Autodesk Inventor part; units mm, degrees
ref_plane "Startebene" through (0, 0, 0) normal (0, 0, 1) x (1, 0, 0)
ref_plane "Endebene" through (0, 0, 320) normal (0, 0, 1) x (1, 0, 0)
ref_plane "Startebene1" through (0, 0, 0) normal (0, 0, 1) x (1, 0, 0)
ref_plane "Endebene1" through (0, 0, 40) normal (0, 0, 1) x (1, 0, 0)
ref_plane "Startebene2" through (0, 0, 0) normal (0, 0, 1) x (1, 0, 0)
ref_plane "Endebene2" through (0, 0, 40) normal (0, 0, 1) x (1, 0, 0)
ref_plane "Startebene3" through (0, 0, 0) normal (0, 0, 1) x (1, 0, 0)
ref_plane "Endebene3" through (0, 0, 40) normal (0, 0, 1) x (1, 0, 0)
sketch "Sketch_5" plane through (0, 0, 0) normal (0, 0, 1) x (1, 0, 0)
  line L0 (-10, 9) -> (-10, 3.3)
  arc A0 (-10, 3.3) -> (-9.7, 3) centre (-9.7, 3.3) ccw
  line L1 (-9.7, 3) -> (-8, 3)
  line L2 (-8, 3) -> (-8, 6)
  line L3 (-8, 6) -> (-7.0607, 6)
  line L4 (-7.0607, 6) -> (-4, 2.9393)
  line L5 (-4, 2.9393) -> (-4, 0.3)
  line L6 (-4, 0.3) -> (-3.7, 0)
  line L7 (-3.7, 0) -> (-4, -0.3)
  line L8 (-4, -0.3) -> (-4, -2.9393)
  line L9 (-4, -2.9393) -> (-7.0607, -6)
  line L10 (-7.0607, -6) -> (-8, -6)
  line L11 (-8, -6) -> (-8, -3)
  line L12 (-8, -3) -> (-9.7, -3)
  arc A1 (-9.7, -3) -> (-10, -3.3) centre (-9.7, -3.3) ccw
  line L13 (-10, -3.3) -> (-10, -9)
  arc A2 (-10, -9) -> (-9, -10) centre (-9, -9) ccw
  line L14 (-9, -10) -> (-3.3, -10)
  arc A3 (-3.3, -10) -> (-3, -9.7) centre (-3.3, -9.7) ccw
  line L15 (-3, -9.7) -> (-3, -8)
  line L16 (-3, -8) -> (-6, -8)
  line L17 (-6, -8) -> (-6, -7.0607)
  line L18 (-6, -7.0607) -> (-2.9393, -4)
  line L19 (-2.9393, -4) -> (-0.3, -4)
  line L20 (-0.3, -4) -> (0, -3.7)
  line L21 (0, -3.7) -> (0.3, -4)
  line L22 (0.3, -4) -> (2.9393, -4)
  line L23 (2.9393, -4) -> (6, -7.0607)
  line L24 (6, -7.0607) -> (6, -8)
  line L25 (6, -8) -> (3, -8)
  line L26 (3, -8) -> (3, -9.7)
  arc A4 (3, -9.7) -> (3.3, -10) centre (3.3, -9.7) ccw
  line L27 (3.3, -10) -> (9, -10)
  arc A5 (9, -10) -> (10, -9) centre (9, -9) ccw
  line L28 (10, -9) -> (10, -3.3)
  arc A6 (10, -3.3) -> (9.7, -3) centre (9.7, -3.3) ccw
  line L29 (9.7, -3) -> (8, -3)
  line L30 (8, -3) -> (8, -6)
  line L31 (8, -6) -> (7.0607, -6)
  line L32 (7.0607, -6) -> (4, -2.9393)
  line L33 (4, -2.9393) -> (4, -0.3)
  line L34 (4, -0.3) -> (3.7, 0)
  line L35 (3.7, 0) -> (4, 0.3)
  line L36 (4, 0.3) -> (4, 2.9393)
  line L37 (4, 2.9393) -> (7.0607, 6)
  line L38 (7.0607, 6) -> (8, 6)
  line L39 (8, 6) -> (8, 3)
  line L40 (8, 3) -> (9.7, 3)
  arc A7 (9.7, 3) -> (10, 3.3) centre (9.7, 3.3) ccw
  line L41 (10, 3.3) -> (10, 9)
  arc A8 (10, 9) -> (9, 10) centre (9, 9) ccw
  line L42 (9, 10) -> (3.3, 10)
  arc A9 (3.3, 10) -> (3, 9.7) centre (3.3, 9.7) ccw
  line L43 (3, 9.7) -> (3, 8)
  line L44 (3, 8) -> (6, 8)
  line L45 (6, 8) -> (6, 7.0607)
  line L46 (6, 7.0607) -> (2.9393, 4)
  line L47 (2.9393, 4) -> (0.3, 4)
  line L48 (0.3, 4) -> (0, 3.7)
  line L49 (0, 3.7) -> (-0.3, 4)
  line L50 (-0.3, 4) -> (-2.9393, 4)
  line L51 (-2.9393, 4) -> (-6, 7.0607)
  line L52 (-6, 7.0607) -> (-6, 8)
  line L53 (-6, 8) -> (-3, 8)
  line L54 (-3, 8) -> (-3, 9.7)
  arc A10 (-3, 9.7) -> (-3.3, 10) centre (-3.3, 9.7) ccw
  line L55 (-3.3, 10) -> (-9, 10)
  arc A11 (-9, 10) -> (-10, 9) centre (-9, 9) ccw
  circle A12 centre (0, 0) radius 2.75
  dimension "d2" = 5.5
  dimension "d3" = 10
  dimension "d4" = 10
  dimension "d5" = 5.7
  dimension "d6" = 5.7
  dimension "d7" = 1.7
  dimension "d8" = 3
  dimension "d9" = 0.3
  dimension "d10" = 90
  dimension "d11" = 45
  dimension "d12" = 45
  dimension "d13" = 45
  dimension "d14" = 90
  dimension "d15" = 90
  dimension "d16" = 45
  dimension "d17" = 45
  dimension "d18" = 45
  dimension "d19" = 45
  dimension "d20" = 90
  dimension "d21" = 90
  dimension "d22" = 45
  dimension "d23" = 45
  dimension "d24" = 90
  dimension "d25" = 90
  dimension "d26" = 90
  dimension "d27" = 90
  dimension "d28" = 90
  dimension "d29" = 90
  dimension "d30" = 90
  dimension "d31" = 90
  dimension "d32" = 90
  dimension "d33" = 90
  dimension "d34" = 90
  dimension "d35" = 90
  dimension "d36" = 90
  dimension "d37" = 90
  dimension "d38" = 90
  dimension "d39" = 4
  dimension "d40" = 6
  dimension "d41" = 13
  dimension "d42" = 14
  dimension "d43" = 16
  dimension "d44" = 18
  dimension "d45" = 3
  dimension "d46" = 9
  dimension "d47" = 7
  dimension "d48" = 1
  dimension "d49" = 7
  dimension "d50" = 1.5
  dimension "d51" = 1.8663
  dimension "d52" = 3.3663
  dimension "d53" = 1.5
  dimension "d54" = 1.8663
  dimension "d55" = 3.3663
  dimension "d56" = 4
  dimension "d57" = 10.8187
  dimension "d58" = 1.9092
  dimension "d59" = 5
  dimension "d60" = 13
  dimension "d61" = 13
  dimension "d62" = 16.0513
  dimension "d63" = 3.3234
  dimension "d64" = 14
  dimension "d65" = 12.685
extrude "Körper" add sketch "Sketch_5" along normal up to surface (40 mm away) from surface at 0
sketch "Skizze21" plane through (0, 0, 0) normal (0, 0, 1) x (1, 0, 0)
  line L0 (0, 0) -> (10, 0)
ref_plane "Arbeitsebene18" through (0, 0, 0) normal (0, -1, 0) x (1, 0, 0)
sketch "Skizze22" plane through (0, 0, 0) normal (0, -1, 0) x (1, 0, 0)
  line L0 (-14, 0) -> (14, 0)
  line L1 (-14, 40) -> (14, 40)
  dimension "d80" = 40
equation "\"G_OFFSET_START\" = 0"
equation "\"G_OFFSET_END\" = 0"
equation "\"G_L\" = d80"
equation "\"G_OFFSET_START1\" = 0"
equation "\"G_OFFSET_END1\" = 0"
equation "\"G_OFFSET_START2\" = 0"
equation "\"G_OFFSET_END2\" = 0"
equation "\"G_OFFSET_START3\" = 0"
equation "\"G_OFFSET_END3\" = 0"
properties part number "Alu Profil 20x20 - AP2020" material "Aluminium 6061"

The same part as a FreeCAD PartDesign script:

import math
import FreeCAD as App
import Part
import Sketcher
from FreeCAD import Vector

doc = App.newDocument("Part")
body = doc.addObject("PartDesign::Body", "Body")

sketch1 = body.newObject("Sketcher::SketchObject", "Sketch")
sketch1.AttachmentSupport = (doc.getObject("XY_Plane"), [""])
sketch1.MapMode = "FlatFace"
sketch1.addGeometry(Part.ArcOfCircle(Part.Circle(Vector(-9, 9, 0), Vector(0, 0, 1), 1), math.radians(90), math.radians(180)), False)
sketch1.addGeometry(Part.LineSegment(Vector(-10, 9, 0), Vector(-10, 3.3, 0)), False)
sketch1.addGeometry(Part.ArcOfCircle(Part.Circle(Vector(-9.7, 3.3, 0), Vector(0, 0, 1), 0.3), math.radians(180), math.radians(270)), False)
sketch1.addGeometry(Part.LineSegment(Vector(-9.7, 3, 0), Vector(-8, 3, 0)), False)
sketch1.addGeometry(Part.LineSegment(Vector(-8, 3, 0), Vector(-8, 6, 0)), False)
sketch1.addGeometry(Part.LineSegment(Vector(-8, 6, 0), Vector(-7.06, 6, 0)), False)
sketch1.addGeometry(Part.LineSegment(Vector(-7.06, 6, 0), Vector(-4, 2.94, 0)), False)
sketch1.addGeometry(Part.LineSegment(Vector(-4, 2.94, 0), Vector(-4, 0.3, 0)), False)
sketch1.addGeometry(Part.LineSegment(Vector(-4, 0.3, 0), Vector(-3.7, 0, 0)), False)
sketch1.addGeometry(Part.LineSegment(Vector(-3.7, 0, 0), Vector(-4, -0.3, 0)), False)
sketch1.addGeometry(Part.LineSegment(Vector(-4, -0.3, 0), Vector(-4, -2.94, 0)), False)
sketch1.addGeometry(Part.LineSegment(Vector(-4, -2.94, 0), Vector(-7.06, -6, 0)), False)
sketch1.addGeometry(Part.LineSegment(Vector(-7.06, -6, 0), Vector(-8, -6, 0)), False)
sketch1.addGeometry(Part.LineSegment(Vector(-8, -6, 0), Vector(-8, -3, 0)), False)
sketch1.addGeometry(Part.LineSegment(Vector(-8, -3, 0), Vector(-9.7, -3, 0)), False)
sketch1.addGeometry(Part.ArcOfCircle(Part.Circle(Vector(-9.7, -3.3, 0), Vector(0, 0, 1), 0.3), math.radians(90), math.radians(180)), False)
sketch1.addGeometry(Part.LineSegment(Vector(-10, -3.3, 0), Vector(-10, -9, 0)), False)
sketch1.addGeometry(Part.ArcOfCircle(Part.Circle(Vector(-9, -9, 0), Vector(0, 0, 1), 1), math.radians(180), math.radians(270)), False)
sketch1.addGeometry(Part.LineSegment(Vector(-9, -10, 0), Vector(-3.3, -10, 0)), False)
sketch1.addGeometry(Part.ArcOfCircle(Part.Circle(Vector(-3.3, -9.7, 0), Vector(0, 0, 1), 0.3), math.radians(-90), math.radians(0)), False)
sketch1.addGeometry(Part.LineSegment(Vector(-3, -9.7, 0), Vector(-3, -8, 0)), False)
sketch1.addGeometry(Part.LineSegment(Vector(-3, -8, 0), Vector(-6, -8, 0)), False)
sketch1.addGeometry(Part.LineSegment(Vector(-6, -8, 0), Vector(-6, -7.06, 0)), False)
sketch1.addGeometry(Part.LineSegment(Vector(-6, -7.06, 0), Vector(-2.94, -4, 0)), False)
sketch1.addGeometry(Part.LineSegment(Vector(-2.94, -4, 0), Vector(-0.3, -4, 0)), False)
sketch1.addGeometry(Part.LineSegment(Vector(-0.3, -4, 0), Vector(0, -3.7, 0)), False)
sketch1.addGeometry(Part.LineSegment(Vector(0, -3.7, 0), Vector(0.3, -4, 0)), False)
sketch1.addGeometry(Part.LineSegment(Vector(0.3, -4, 0), Vector(2.94, -4, 0)), False)
sketch1.addGeometry(Part.LineSegment(Vector(2.94, -4, 0), Vector(6, -7.06, 0)), False)
sketch1.addGeometry(Part.LineSegment(Vector(6, -7.06, 0), Vector(6, -8, 0)), False)
sketch1.addGeometry(Part.LineSegment(Vector(6, -8, 0), Vector(3, -8, 0)), False)
sketch1.addGeometry(Part.LineSegment(Vector(3, -8, 0), Vector(3, -9.7, 0)), False)
sketch1.addGeometry(Part.ArcOfCircle(Part.Circle(Vector(3.3, -9.7, 0), Vector(0, 0, 1), 0.3), math.radians(180), math.radians(270)), False)
sketch1.addGeometry(Part.LineSegment(Vector(3.3, -10, 0), Vector(9, -10, 0)), False)
sketch1.addGeometry(Part.ArcOfCircle(Part.Circle(Vector(9, -9, 0), Vector(0, 0, 1), 1), math.radians(-90), math.radians(0)), False)
sketch1.addGeometry(Part.LineSegment(Vector(10, -9, 0), Vector(10, -3.3, 0)), False)
sketch1.addGeometry(Part.ArcOfCircle(Part.Circle(Vector(9.7, -3.3, 0), Vector(0, 0, 1), 0.3), math.radians(0), math.radians(90)), False)
sketch1.addGeometry(Part.LineSegment(Vector(9.7, -3, 0), Vector(8, -3, 0)), False)
sketch1.addGeometry(Part.LineSegment(Vector(8, -3, 0), Vector(8, -6, 0)), False)
sketch1.addGeometry(Part.LineSegment(Vector(8, -6, 0), Vector(7.06, -6, 0)), False)
sketch1.addGeometry(Part.LineSegment(Vector(7.06, -6, 0), Vector(4, -2.94, 0)), False)
sketch1.addGeometry(Part.LineSegment(Vector(4, -2.94, 0), Vector(4, -0.3, 0)), False)
sketch1.addGeometry(Part.LineSegment(Vector(4, -0.3, 0), Vector(3.7, 0, 0)), False)
sketch1.addGeometry(Part.LineSegment(Vector(3.7, 0, 0), Vector(4, 0.3, 0)), False)
sketch1.addGeometry(Part.LineSegment(Vector(4, 0.3, 0), Vector(4, 2.94, 0)), False)
sketch1.addGeometry(Part.LineSegment(Vector(4, 2.94, 0), Vector(7.06, 6, 0)), False)
sketch1.addGeometry(Part.LineSegment(Vector(7.06, 6, 0), Vector(8, 6, 0)), False)
sketch1.addGeometry(Part.LineSegment(Vector(8, 6, 0), Vector(8, 3, 0)), False)
sketch1.addGeometry(Part.LineSegment(Vector(8, 3, 0), Vector(9.7, 3, 0)), False)
sketch1.addGeometry(Part.ArcOfCircle(Part.Circle(Vector(9.7, 3.3, 0), Vector(0, 0, 1), 0.3), math.radians(-90), math.radians(0)), False)
sketch1.addGeometry(Part.LineSegment(Vector(10, 3.3, 0), Vector(10, 9, 0)), False)
sketch1.addGeometry(Part.ArcOfCircle(Part.Circle(Vector(9, 9, 0), Vector(0, 0, 1), 1), math.radians(0), math.radians(90)), False)
sketch1.addGeometry(Part.LineSegment(Vector(9, 10, 0), Vector(3.3, 10, 0)), False)
sketch1.addGeometry(Part.ArcOfCircle(Part.Circle(Vector(3.3, 9.7, 0), Vector(0, 0, 1), 0.3), math.radians(90), math.radians(180)), False)
sketch1.addGeometry(Part.LineSegment(Vector(3, 9.7, 0), Vector(3, 8, 0)), False)
sketch1.addGeometry(Part.LineSegment(Vector(3, 8, 0), Vector(6, 8, 0)), False)
sketch1.addGeometry(Part.LineSegment(Vector(6, 8, 0), Vector(6, 7.06, 0)), False)
sketch1.addGeometry(Part.LineSegment(Vector(6, 7.06, 0), Vector(2.94, 4, 0)), False)
sketch1.addGeometry(Part.LineSegment(Vector(2.94, 4, 0), Vector(0.3, 4, 0)), False)
sketch1.addGeometry(Part.LineSegment(Vector(0.3, 4, 0), Vector(0, 3.7, 0)), False)
sketch1.addGeometry(Part.LineSegment(Vector(0, 3.7, 0), Vector(-0.3, 4, 0)), False)
sketch1.addGeometry(Part.LineSegment(Vector(-0.3, 4, 0), Vector(-2.94, 4, 0)), False)
sketch1.addGeometry(Part.LineSegment(Vector(-2.94, 4, 0), Vector(-6, 7.06, 0)), False)
sketch1.addGeometry(Part.LineSegment(Vector(-6, 7.06, 0), Vector(-6, 8, 0)), False)
sketch1.addGeometry(Part.LineSegment(Vector(-6, 8, 0), Vector(-3, 8, 0)), False)
sketch1.addGeometry(Part.LineSegment(Vector(-3, 8, 0), Vector(-3, 9.7, 0)), False)
sketch1.addGeometry(Part.ArcOfCircle(Part.Circle(Vector(-3.3, 9.7, 0), Vector(0, 0, 1), 0.3), math.radians(0), math.radians(90)), False)
sketch1.addGeometry(Part.LineSegment(Vector(-3.3, 10, 0), Vector(-9, 10, 0)), False)
sketch1.addGeometry(Part.Circle(Vector(0, 0, 0), Vector(0, 0, 1), 2.75), False)
sketch1.addConstraint(Sketcher.Constraint("Tangent", 0, 2, 1, 1))
sketch1.addConstraint(Sketcher.Constraint("Tangent", 1, 2, 2, 1))
sketch1.addConstraint(Sketcher.Constraint("Tangent", 2, 2, 3, 1))
sketch1.addConstraint(Sketcher.Constraint("Coincident", 3, 2, 4, 1))
sketch1.addConstraint(Sketcher.Constraint("Coincident", 4, 2, 5, 1))
sketch1.addConstraint(Sketcher.Constraint("Coincident", 5, 2, 6, 1))
sketch1.addConstraint(Sketcher.Constraint("Coincident", 6, 2, 7, 1))
sketch1.addConstraint(Sketcher.Constraint("Coincident", 7, 2, 8, 1))
sketch1.addConstraint(Sketcher.Constraint("Coincident", 8, 2, 9, 1))
sketch1.addConstraint(Sketcher.Constraint("Coincident", 9, 2, 10, 1))
sketch1.addConstraint(Sketcher.Constraint("Coincident", 10, 2, 11, 1))
sketch1.addConstraint(Sketcher.Constraint("Coincident", 11, 2, 12, 1))
sketch1.addConstraint(Sketcher.Constraint("Coincident", 12, 2, 13, 1))
sketch1.addConstraint(Sketcher.Constraint("Coincident", 13, 2, 14, 1))
sketch1.addConstraint(Sketcher.Constraint("Tangent", 14, 2, 15, 1))
sketch1.addConstraint(Sketcher.Constraint("Tangent", 15, 2, 16, 1))
sketch1.addConstraint(Sketcher.Constraint("Tangent", 16, 2, 17, 1))
sketch1.addConstraint(Sketcher.Constraint("Tangent", 17, 2, 18, 1))
sketch1.addConstraint(Sketcher.Constraint("Tangent", 18, 2, 19, 1))
sketch1.addConstraint(Sketcher.Constraint("Tangent", 19, 2, 20, 1))
sketch1.addConstraint(Sketcher.Constraint("Coincident", 20, 2, 21, 1))
sketch1.addConstraint(Sketcher.Constraint("Coincident", 21, 2, 22, 1))
sketch1.addConstraint(Sketcher.Constraint("Coincident", 22, 2, 23, 1))
sketch1.addConstraint(Sketcher.Constraint("Coincident", 23, 2, 24, 1))
sketch1.addConstraint(Sketcher.Constraint("Coincident", 24, 2, 25, 1))
sketch1.addConstraint(Sketcher.Constraint("Coincident", 25, 2, 26, 1))
sketch1.addConstraint(Sketcher.Constraint("Coincident", 26, 2, 27, 1))
sketch1.addConstraint(Sketcher.Constraint("Coincident", 27, 2, 28, 1))
sketch1.addConstraint(Sketcher.Constraint("Coincident", 28, 2, 29, 1))
sketch1.addConstraint(Sketcher.Constraint("Coincident", 29, 2, 30, 1))
sketch1.addConstraint(Sketcher.Constraint("Coincident", 30, 2, 31, 1))
sketch1.addConstraint(Sketcher.Constraint("Tangent", 31, 2, 32, 1))
sketch1.addConstraint(Sketcher.Constraint("Tangent", 32, 2, 33, 1))
sketch1.addConstraint(Sketcher.Constraint("Tangent", 33, 2, 34, 1))
sketch1.addConstraint(Sketcher.Constraint("Tangent", 34, 2, 35, 1))
sketch1.addConstraint(Sketcher.Constraint("Tangent", 35, 2, 36, 1))
sketch1.addConstraint(Sketcher.Constraint("Tangent", 36, 2, 37, 1))
sketch1.addConstraint(Sketcher.Constraint("Coincident", 37, 2, 38, 1))
sketch1.addConstraint(Sketcher.Constraint("Coincident", 38, 2, 39, 1))
sketch1.addConstraint(Sketcher.Constraint("Coincident", 39, 2, 40, 1))
sketch1.addConstraint(Sketcher.Constraint("Coincident", 40, 2, 41, 1))
sketch1.addConstraint(Sketcher.Constraint("Coincident", 41, 2, 42, 1))
sketch1.addConstraint(Sketcher.Constraint("Coincident", 42, 2, 43, 1))
sketch1.addConstraint(Sketcher.Constraint("Coincident", 43, 2, 44, 1))
sketch1.addConstraint(Sketcher.Constraint("Coincident", 44, 2, 45, 1))
sketch1.addConstraint(Sketcher.Constraint("Coincident", 45, 2, 46, 1))
sketch1.addConstraint(Sketcher.Constraint("Coincident", 46, 2, 47, 1))
sketch1.addConstraint(Sketcher.Constraint("Coincident", 47, 2, 48, 1))
sketch1.addConstraint(Sketcher.Constraint("Tangent", 48, 2, 49, 1))
sketch1.addConstraint(Sketcher.Constraint("Tangent", 49, 2, 50, 1))
sketch1.addConstraint(Sketcher.Constraint("Tangent", 50, 2, 51, 1))
sketch1.addConstraint(Sketcher.Constraint("Tangent", 51, 2, 52, 1))
sketch1.addConstraint(Sketcher.Constraint("Tangent", 52, 2, 53, 1))
sketch1.addConstraint(Sketcher.Constraint("Tangent", 53, 2, 54, 1))
sketch1.addConstraint(Sketcher.Constraint("Coincident", 54, 2, 55, 1))
sketch1.addConstraint(Sketcher.Constraint("Coincident", 55, 2, 56, 1))
sketch1.addConstraint(Sketcher.Constraint("Coincident", 56, 2, 57, 1))
sketch1.addConstraint(Sketcher.Constraint("Coincident", 57, 2, 58, 1))
sketch1.addConstraint(Sketcher.Constraint("Coincident", 58, 2, 59, 1))
sketch1.addConstraint(Sketcher.Constraint("Coincident", 59, 2, 60, 1))
sketch1.addConstraint(Sketcher.Constraint("Coincident", 60, 2, 61, 1))
sketch1.addConstraint(Sketcher.Constraint("Coincident", 61, 2, 62, 1))
sketch1.addConstraint(Sketcher.Constraint("Coincident", 62, 2, 63, 1))
sketch1.addConstraint(Sketcher.Constraint("Coincident", 63, 2, 64, 1))
sketch1.addConstraint(Sketcher.Constraint("Coincident", 64, 2, 65, 1))
sketch1.addConstraint(Sketcher.Constraint("Tangent", 65, 2, 66, 1))
sketch1.addConstraint(Sketcher.Constraint("Tangent", 66, 2, 67, 1))
sketch1.addConstraint(Sketcher.Constraint("Tangent", 67, 2, 0, 1))
sketch1.addConstraint(Sketcher.Constraint("Vertical", 1))
sketch1.addConstraint(Sketcher.Constraint("Horizontal", 3))
sketch1.addConstraint(Sketcher.Constraint("Vertical", 4))
sketch1.addConstraint(Sketcher.Constraint("Horizontal", 5))
sketch1.addConstraint(Sketcher.Constraint("Vertical", 7))
sketch1.addConstraint(Sketcher.Constraint("Vertical", 10))
sketch1.addConstraint(Sketcher.Constraint("Horizontal", 12))
sketch1.addConstraint(Sketcher.Constraint("Vertical", 13))
sketch1.addConstraint(Sketcher.Constraint("Horizontal", 14))
sketch1.addConstraint(Sketcher.Constraint("Vertical", 16))
sketch1.addConstraint(Sketcher.Constraint("Horizontal", 18))
sketch1.addConstraint(Sketcher.Constraint("Vertical", 20))
sketch1.addConstraint(Sketcher.Constraint("Horizontal", 21))
sketch1.addConstraint(Sketcher.Constraint("Vertical", 22))
sketch1.addConstraint(Sketcher.Constraint("Horizontal", 24))
sketch1.addConstraint(Sketcher.Constraint("Horizontal", 27))
sketch1.addConstraint(Sketcher.Constraint("Vertical", 29))
sketch1.addConstraint(Sketcher.Constraint("Horizontal", 30))
sketch1.addConstraint(Sketcher.Constraint("Vertical", 31))
sketch1.addConstraint(Sketcher.Constraint("Horizontal", 33))
sketch1.addConstraint(Sketcher.Constraint("Vertical", 35))
sketch1.addConstraint(Sketcher.Constraint("Horizontal", 37))
sketch1.addConstraint(Sketcher.Constraint("Vertical", 38))
sketch1.addConstraint(Sketcher.Constraint("Horizontal", 39))
sketch1.addConstraint(Sketcher.Constraint("Vertical", 41))
sketch1.addConstraint(Sketcher.Constraint("Vertical", 44))
sketch1.addConstraint(Sketcher.Constraint("Horizontal", 46))
sketch1.addConstraint(Sketcher.Constraint("Vertical", 47))
sketch1.addConstraint(Sketcher.Constraint("Horizontal", 48))
sketch1.addConstraint(Sketcher.Constraint("Vertical", 50))
sketch1.addConstraint(Sketcher.Constraint("Horizontal", 52))
sketch1.addConstraint(Sketcher.Constraint("Vertical", 54))
sketch1.addConstraint(Sketcher.Constraint("Horizontal", 55))
sketch1.addConstraint(Sketcher.Constraint("Vertical", 56))
sketch1.addConstraint(Sketcher.Constraint("Horizontal", 58))
sketch1.addConstraint(Sketcher.Constraint("Horizontal", 61))
sketch1.addConstraint(Sketcher.Constraint("Vertical", 63))
sketch1.addConstraint(Sketcher.Constraint("Horizontal", 64))
sketch1.addConstraint(Sketcher.Constraint("Vertical", 65))
sketch1.addConstraint(Sketcher.Constraint("Horizontal", 67))
sketch1.addConstraint(Sketcher.Constraint("Coincident", 68, 3, -1, 1))
sketch1.addConstraint(Sketcher.Constraint("Equal", 2, 15))
sketch1.addConstraint(Sketcher.Constraint("Equal", 0, 17))
sketch1.addConstraint(Sketcher.Constraint("Equal", 15, 19))
sketch1.addConstraint(Sketcher.Constraint("Equal", 19, 32))
sketch1.addConstraint(Sketcher.Constraint("Equal", 17, 34))
sketch1.addConstraint(Sketcher.Constraint("Equal", 32, 36))
sketch1.addConstraint(Sketcher.Constraint("Equal", 36, 49))
sketch1.addConstraint(Sketcher.Constraint("Equal", 34, 51))
sketch1.addConstraint(Sketcher.Constraint("Equal", 49, 53))
sketch1.addConstraint(Sketcher.Constraint("Equal", 53, 66))
sketch1.addConstraint(Sketcher.Constraint("Symmetric", 0, 3, 34, 3, -1, 1))
sketch1.addConstraint(Sketcher.Constraint("Symmetric", 15, 3, 49, 3, -1, 1))
sketch1.addConstraint(Sketcher.Constraint("Symmetric", 19, 3, 53, 3, -1, 1))
sketch1.addConstraint(Sketcher.Constraint("Symmetric", 3, 2, 37, 2, -1, 1))
sketch1.addConstraint(Sketcher.Constraint("Symmetric", 5, 2, 39, 2, -1, 1))
sketch1.addConstraint(Sketcher.Constraint("Symmetric", 6, 2, 40, 2, -1, 1))
sketch1.addConstraint(Sketcher.Constraint("Symmetric", 8, 2, 42, 2, -1, 1))
sketch1.addConstraint(Sketcher.Constraint("Symmetric", 9, 2, 43, 2, -1, 1))
sketch1.addConstraint(Sketcher.Constraint("Symmetric", 11, 2, 45, 2, -1, 1))
sketch1.addConstraint(Sketcher.Constraint("Symmetric", 21, 2, 55, 2, -1, 1))
sketch1.addConstraint(Sketcher.Constraint("Symmetric", 23, 2, 57, 2, -1, 1))
sketch1.addConstraint(Sketcher.Constraint("Symmetric", 25, 2, 59, 2, -1, 1))
sketch1.addConstraint(Sketcher.Constraint("Symmetric", 26, 2, 60, 2, -1, 1))
sketch1.addConstraint(Sketcher.Constraint("Symmetric", 28, 2, 62, 2, -1, 1))
sketch1.addConstraint(Sketcher.Constraint("Symmetric", 30, 2, 64, 2, -1, 1))
sketch1.addConstraint(Sketcher.Constraint("Symmetric", 19, 3, 32, 3, -2))
sketch1.addConstraint(Sketcher.Constraint("Symmetric", 15, 3, 36, 3, -2))
sketch1.addConstraint(Sketcher.Constraint("Symmetric", 24, 2, 26, 2, -2))
sketch1.addConstraint(Sketcher.Constraint("Symmetric", 22, 2, 28, 2, -2))
sketch1.addConstraint(Sketcher.Constraint("Symmetric", 12, 2, 38, 2, -2))
sketch1.addConstraint(Sketcher.Constraint("Symmetric", 10, 2, 40, 2, -2))
sketch1.addConstraint(Sketcher.Constraint("PointOnObject", 8, 2, -1))
sketch1.addConstraint(Sketcher.Constraint("PointOnObject", 25, 2, -2))
sketch1.addConstraint(Sketcher.Constraint("Parallel", 6, 8))
sketch1.addConstraint(Sketcher.Constraint("Perpendicular", 8, 9))
sketch1.addConstraint(Sketcher.Constraint("Parallel", 9, 11))
sketch1.addConstraint(Sketcher.Constraint("Parallel", 11, 23))
sketch1.addConstraint(Sketcher.Constraint("Parallel", 23, 25))
sketch1.addConstraint(Sketcher.Constraint("Perpendicular", 25, 26))
sketch1.addConstraint(Sketcher.Constraint("Parallel", 26, 28))
sketch1.addConstraint(Sketcher.Constraint("Parallel", 40, 42))
sketch1.addConstraint(Sketcher.Constraint("Parallel", 43, 45))
sketch1.addConstraint(Sketcher.Constraint("Parallel", 45, 57))
sketch1.addConstraint(Sketcher.Constraint("Parallel", 57, 59))
sketch1.addConstraint(Sketcher.Constraint("Parallel", 60, 62))
sketch1.addConstraint(Sketcher.Constraint("Horizontal", 21, 2, 29, 2))
sketch1.addConstraint(Sketcher.Constraint("Vertical", 38, 2, 46, 2))
sketch1.addConstraint(Sketcher.Constraint("Equal", 67, 1))
sketch1.addConstraint(Sketcher.Constraint("Equal", 64, 4))
sketch1.addConstraint(Sketcher.Constraint("Equal", 61, 7))
sketch1.addConstraint(Sketcher.Constraint("Equal", 48, 20))
sketch1.addConstraint(Sketcher.Constraint("Equal", 46, 22))
sketch1.addConstraint(Sketcher.Constraint("Equal", 11, 23))
sketch1.addConstraint(Sketcher.Constraint("Equal", 9, 25))
sketch1.addConstraint(Sketcher.Constraint("Radius", 0, 1.0))
sketch1.addConstraint(Sketcher.Constraint("Diameter", 68, 5.5))
sketch1.addConstraint(Sketcher.Constraint("Radius", 2, 0.3))
sketch1.addConstraint(Sketcher.Constraint("DistanceX", 21, 2, 21, 1, 3.0))
sketch1.addConstraint(Sketcher.Constraint("DistanceX", 3, 1, 3, 2, 1.7))
sketch1.addConstraint(Sketcher.Constraint("DistanceX", 18, 1, 18, 2, 5.7))
sketch1.addConstraint(Sketcher.Constraint("DistanceX", 0, 3, -1, 1, 9.0))
sketch1.addConstraint(Sketcher.Constraint("DistanceX", 6, 2, -1, 1, 4.0))
sketch1.addConstraint(Sketcher.Constraint("DistanceY", -1, 1, 7, 2, 0.3))
sketch1.addConstraint(Sketcher.Constraint("DistanceX", 5, 1, 5, 2, 0.9393))
pad1 = body.newObject("PartDesign::Pad", "Pad")
pad1.Profile = sketch1
pad1.Length = 40

doc.recompute()
